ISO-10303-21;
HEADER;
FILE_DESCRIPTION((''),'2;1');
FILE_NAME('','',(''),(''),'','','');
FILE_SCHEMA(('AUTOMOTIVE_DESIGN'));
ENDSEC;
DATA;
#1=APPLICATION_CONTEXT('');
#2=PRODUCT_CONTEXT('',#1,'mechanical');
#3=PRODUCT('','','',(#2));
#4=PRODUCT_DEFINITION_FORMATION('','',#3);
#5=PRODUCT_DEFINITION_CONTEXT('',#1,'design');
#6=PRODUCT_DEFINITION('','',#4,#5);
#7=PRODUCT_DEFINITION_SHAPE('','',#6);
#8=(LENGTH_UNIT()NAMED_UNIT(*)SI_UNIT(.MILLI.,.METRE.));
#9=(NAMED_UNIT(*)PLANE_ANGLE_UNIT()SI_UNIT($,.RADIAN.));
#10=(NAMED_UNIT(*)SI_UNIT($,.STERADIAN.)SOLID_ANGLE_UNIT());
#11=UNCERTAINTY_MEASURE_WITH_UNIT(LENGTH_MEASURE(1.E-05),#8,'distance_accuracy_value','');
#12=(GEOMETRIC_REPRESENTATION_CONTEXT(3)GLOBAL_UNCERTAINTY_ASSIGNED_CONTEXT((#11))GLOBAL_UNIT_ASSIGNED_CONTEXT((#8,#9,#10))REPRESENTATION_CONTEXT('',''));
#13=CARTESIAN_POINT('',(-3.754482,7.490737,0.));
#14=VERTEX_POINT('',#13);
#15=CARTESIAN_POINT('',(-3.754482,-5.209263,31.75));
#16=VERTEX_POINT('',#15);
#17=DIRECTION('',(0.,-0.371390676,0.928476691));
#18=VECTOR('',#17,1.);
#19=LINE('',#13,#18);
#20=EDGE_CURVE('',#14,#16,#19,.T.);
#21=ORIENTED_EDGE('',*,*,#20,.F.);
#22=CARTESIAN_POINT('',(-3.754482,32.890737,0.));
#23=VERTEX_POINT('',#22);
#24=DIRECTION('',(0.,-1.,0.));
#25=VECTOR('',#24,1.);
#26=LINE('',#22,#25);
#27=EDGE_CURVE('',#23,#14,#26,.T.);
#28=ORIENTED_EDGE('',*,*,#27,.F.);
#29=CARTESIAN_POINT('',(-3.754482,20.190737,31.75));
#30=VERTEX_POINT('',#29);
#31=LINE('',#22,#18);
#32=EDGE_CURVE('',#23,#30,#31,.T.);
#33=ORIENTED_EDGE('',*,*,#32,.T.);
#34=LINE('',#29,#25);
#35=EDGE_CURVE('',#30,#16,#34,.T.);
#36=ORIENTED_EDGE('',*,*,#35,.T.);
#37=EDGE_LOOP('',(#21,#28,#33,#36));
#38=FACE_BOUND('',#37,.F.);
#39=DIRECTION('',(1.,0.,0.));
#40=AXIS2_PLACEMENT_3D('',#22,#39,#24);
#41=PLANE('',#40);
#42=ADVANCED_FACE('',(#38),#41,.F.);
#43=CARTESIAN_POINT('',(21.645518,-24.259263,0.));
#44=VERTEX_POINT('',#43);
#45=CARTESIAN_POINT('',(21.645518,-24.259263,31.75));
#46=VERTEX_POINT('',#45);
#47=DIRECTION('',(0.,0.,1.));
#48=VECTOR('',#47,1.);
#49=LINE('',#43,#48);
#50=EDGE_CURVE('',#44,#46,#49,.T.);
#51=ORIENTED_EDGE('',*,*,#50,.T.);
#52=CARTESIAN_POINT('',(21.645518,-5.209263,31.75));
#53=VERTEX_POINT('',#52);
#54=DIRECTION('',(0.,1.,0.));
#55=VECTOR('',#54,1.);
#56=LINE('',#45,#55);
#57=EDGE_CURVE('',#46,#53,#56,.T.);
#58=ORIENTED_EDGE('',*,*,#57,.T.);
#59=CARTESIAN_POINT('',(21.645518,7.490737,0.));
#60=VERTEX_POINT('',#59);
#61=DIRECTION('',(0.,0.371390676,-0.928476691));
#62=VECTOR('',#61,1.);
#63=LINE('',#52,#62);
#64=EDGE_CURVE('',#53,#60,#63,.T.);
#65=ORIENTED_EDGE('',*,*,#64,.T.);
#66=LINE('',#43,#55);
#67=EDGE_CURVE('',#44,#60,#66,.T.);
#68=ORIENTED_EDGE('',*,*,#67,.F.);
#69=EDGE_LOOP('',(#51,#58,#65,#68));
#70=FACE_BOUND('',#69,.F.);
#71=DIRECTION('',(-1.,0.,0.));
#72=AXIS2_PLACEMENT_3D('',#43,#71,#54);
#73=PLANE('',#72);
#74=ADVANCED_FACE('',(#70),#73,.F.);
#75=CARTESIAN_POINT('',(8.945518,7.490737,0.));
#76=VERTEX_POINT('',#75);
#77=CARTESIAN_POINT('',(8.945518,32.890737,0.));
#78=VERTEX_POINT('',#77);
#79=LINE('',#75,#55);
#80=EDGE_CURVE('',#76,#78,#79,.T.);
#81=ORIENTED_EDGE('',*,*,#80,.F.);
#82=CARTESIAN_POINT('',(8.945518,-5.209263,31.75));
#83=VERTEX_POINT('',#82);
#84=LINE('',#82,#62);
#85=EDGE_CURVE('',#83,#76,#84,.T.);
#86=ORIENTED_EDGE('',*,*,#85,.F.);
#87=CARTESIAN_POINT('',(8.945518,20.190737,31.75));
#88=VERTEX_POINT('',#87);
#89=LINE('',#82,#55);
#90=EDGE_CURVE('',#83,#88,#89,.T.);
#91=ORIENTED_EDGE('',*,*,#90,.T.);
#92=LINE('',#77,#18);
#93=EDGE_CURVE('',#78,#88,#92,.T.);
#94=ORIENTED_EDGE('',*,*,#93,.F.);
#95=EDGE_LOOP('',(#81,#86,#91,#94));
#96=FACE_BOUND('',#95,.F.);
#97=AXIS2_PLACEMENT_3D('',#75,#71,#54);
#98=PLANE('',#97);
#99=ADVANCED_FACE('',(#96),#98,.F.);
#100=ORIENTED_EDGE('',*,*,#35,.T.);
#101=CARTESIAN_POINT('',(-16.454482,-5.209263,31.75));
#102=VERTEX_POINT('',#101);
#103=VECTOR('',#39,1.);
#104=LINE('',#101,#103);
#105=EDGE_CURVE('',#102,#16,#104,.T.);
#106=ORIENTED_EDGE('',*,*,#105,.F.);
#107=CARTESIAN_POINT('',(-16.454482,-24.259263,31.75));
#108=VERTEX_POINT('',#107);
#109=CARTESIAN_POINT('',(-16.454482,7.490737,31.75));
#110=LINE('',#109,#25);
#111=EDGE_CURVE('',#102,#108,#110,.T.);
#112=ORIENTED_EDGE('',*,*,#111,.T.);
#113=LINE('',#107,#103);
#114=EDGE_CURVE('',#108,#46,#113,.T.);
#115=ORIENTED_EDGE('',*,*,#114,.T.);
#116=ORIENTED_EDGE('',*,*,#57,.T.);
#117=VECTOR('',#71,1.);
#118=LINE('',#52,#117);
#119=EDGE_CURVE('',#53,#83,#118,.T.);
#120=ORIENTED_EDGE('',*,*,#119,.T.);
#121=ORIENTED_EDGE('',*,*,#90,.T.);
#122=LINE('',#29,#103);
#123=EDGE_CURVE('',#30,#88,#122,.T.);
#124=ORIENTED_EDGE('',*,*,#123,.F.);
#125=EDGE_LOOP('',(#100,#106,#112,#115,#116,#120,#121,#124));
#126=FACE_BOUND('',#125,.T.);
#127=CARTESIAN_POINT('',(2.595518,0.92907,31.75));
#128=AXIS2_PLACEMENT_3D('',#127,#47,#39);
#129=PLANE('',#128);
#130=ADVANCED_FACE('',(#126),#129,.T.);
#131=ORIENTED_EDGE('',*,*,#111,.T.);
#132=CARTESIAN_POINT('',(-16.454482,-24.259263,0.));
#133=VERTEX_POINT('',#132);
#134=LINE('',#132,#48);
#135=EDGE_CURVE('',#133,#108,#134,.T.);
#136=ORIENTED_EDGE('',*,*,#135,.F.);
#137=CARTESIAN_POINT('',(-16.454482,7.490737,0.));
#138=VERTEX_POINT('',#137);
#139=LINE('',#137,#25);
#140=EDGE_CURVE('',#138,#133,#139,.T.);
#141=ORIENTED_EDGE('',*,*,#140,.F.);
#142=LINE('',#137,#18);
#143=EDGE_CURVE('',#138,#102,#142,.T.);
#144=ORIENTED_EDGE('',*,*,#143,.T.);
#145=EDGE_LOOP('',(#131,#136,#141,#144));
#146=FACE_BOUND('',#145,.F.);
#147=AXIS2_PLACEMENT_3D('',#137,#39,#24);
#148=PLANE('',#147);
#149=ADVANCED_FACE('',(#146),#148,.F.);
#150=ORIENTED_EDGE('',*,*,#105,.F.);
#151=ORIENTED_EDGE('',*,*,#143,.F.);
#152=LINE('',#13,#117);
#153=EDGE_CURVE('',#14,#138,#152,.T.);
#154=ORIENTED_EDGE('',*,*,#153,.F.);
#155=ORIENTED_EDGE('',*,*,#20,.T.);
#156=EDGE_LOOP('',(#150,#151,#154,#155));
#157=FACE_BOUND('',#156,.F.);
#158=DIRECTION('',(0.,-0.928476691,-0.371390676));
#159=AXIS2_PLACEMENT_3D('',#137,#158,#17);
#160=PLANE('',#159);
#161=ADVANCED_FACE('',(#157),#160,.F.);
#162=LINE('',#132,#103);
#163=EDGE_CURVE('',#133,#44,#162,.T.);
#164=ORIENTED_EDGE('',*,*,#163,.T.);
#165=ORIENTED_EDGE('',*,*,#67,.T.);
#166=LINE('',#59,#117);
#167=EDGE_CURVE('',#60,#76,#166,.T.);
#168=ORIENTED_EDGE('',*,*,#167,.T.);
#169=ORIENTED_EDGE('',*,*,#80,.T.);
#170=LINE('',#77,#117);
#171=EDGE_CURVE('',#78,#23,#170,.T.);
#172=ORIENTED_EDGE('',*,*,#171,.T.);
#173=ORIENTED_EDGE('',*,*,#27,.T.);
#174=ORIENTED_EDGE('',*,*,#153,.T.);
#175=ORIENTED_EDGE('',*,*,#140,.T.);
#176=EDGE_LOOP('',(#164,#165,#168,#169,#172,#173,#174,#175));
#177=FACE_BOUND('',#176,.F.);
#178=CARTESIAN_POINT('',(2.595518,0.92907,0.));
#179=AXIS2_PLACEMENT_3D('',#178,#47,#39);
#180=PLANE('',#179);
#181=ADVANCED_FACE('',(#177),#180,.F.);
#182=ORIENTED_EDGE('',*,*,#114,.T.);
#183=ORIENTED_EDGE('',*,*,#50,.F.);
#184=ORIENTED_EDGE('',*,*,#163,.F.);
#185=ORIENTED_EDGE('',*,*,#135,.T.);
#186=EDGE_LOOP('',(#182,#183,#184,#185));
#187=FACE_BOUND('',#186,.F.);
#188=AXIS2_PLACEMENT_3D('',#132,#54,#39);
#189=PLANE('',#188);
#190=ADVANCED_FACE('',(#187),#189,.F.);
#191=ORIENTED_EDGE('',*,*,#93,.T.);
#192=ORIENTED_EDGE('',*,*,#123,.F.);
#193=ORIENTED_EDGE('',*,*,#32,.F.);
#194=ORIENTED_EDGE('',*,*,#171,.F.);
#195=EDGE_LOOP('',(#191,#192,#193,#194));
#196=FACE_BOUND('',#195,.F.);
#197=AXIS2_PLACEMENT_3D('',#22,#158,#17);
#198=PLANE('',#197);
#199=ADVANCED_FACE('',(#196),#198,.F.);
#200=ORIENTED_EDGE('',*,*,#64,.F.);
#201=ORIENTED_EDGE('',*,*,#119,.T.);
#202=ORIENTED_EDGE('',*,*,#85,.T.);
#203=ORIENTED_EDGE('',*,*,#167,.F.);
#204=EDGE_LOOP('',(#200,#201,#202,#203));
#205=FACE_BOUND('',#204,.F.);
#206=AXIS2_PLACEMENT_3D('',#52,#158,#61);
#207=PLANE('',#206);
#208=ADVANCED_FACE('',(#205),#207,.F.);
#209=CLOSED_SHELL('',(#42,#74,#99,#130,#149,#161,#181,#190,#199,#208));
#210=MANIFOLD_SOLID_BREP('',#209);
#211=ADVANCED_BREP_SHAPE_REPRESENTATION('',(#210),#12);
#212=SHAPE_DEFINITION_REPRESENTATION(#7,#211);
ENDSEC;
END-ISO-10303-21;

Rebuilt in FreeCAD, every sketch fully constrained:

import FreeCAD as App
import Part
import Sketcher

V = App.Vector
Q = App.Units.Quantity


def add_polygon(sketch, points):
    """Adds a closed chain of lines whose ends are joined by coincident constraints."""
    first, n = sketch.GeometryCount, len(points)
    for a, b in zip(points, points[1:] + points[:1]):
        sketch.addGeometry(Part.LineSegment(App.Vector(*a, 0), App.Vector(*b, 0)), False)
    for i in range(n):
        sketch.addConstraint(Sketcher.Constraint("Coincident", first + i, 2, first + (i + 1) % n, 1))

doc = App.newDocument("Part")
body = doc.addObject("PartDesign::Body", "Body")

# Sketch on XY plane
sketch1 = body.newObject("Sketcher::SketchObject", "Sketch")
sketch1.AttachmentSupport = (doc.getObject("XY_Plane"), [""])
sketch1.MapMode = "FlatFace"
add_polygon(sketch1, [(-16.454482, 7.490737), (-16.454482, -24.259263), (21.645518, -24.259263), (21.645518, 7.490737), (8.945518, 7.490737), (8.945518, 32.890737), (-3.754482, 32.890737), (-3.754482, 7.490737)])  # lines 0-7
sketch1.addConstraint(Sketcher.Constraint("Vertical", 0))
sketch1.addConstraint(Sketcher.Constraint("Horizontal", 1))
sketch1.addConstraint(Sketcher.Constraint("Vertical", 2))
sketch1.addConstraint(Sketcher.Constraint("Horizontal", 3))
sketch1.addConstraint(Sketcher.Constraint("Vertical", 4))
sketch1.addConstraint(Sketcher.Constraint("Horizontal", 5))
sketch1.addConstraint(Sketcher.Constraint("Vertical", 6))
sketch1.addConstraint(Sketcher.Constraint("Horizontal", 7))
sketch1.addConstraint(Sketcher.Constraint("Horizontal", 3, 2, 6, 2))
sketch1.addConstraint(Sketcher.Constraint("Equal", 3, 5))
sketch1.addConstraint(Sketcher.Constraint("Equal", 5, 7))
sketch1.addConstraint(Sketcher.Constraint("DistanceY", 4, 1, 4, 2, Q("1 in")))
sketch1.addConstraint(Sketcher.Constraint("DistanceX", 1, 1, 1, 2, Q("1.5 in")))
sketch1.addConstraint(Sketcher.Constraint("DistanceY", 0, 2, 0, 1, Q("1.25 in")))
sketch1.addConstraint(Sketcher.Constraint("DistanceX", 0, 2, -1, 1, 16.454482))
sketch1.addConstraint(Sketcher.Constraint("DistanceY", 0, 2, -1, 1, 24.259263))
pad1 = body.newObject("PartDesign::Pad", "Pad")
pad1.Profile = sketch1
pad1.Length = Q("1.25 in")

# Sketch on YZ plane
sketch2 = body.newObject("Sketcher::SketchObject", "Sketch001")
sketch2.AttachmentSupport = (doc.getObject("YZ_Plane"), [""])
sketch2.MapMode = "FlatFace"
sketch2.AttachmentOffset = App.Placement(V(0, 0, -3.754482), App.Rotation())
add_polygon(sketch2, [(20.190737, 31.75), (32.890737, 31.75), (32.890737, 0)])  # lines 0-2
sketch2.addConstraint(Sketcher.Constraint("Horizontal", 0))
sketch2.addConstraint(Sketcher.Constraint("Vertical", 1))
sketch2.addConstraint(Sketcher.Constraint("PointOnObject", 1, 2, -1))
sketch2.addConstraint(Sketcher.Constraint("DistanceX", 0, 1, 0, 2, Q("0.5 in")))
sketch2.addConstraint(Sketcher.Constraint("DistanceY", 1, 2, 1, 1, Q("1.25 in")))
sketch2.addConstraint(Sketcher.Constraint("DistanceX", -1, 1, 0, 2, 32.890737))
pocket1 = body.newObject("PartDesign::Pocket", "Pocket")
pocket1.Profile = sketch2
pocket1.Length = Q("0.5 in")
pocket1.Reversed = True

# Sketch on YZ plane
sketch3 = body.newObject("Sketcher::SketchObject", "Sketch002")
sketch3.AttachmentSupport = (doc.getObject("YZ_Plane"), [""])
sketch3.MapMode = "FlatFace"
sketch3.AttachmentOffset = App.Placement(V(0, 0, -16.454482), App.Rotation())
add_polygon(sketch3, [(7.490737, 31.75), (7.490737, 0), (-5.209263, 31.75)])  # lines 0-2
sketch3.addConstraint(Sketcher.Constraint("Vertical", 0))
sketch3.addConstraint(Sketcher.Constraint("Horizontal", 2))
sketch3.addConstraint(Sketcher.Constraint("PointOnObject", 0, 2, -1))
sketch3.addConstraint(Sketcher.Constraint("DistanceX", 2, 1, 2, 2, Q("0.5 in")))
sketch3.addConstraint(Sketcher.Constraint("DistanceY", 0, 2, 0, 1, Q("1.25 in")))
sketch3.addConstraint(Sketcher.Constraint("DistanceX", -1, 1, 0, 2, 7.490737))
pocket2 = body.newObject("PartDesign::Pocket", "Pocket001")
pocket2.Profile = sketch3
pocket2.Length = Q("0.5 in")
pocket2.Reversed = True

# Sketch on YZ plane
sketch4 = body.newObject("Sketcher::SketchObject", "Sketch003")
sketch4.AttachmentSupport = (doc.getObject("YZ_Plane"), [""])
sketch4.MapMode = "FlatFace"
sketch4.AttachmentOffset = App.Placement(V(0, 0, 21.645518), App.Rotation())
add_polygon(sketch4, [(7.490737, 0), (7.490737, 31.75), (-5.209263, 31.75)])  # lines 0-2
sketch4.addConstraint(Sketcher.Constraint("Vertical", 0))
sketch4.addConstraint(Sketcher.Constraint("Horizontal", 1))
sketch4.addConstraint(Sketcher.Constraint("PointOnObject", 2, 2, -1))
sketch4.addConstraint(Sketcher.Constraint("DistanceX", 1, 2, 1, 1, Q("0.5 in")))
sketch4.addConstraint(Sketcher.Constraint("DistanceY", 0, 1, 0, 2, Q("1.25 in")))
sketch4.addConstraint(Sketcher.Constraint("DistanceX", -1, 1, 0, 2, 7.490737))
pocket3 = body.newObject("PartDesign::Pocket", "Pocket002")
pocket3.Profile = sketch4
pocket3.Length = Q("0.5 in")

doc.recompute()
